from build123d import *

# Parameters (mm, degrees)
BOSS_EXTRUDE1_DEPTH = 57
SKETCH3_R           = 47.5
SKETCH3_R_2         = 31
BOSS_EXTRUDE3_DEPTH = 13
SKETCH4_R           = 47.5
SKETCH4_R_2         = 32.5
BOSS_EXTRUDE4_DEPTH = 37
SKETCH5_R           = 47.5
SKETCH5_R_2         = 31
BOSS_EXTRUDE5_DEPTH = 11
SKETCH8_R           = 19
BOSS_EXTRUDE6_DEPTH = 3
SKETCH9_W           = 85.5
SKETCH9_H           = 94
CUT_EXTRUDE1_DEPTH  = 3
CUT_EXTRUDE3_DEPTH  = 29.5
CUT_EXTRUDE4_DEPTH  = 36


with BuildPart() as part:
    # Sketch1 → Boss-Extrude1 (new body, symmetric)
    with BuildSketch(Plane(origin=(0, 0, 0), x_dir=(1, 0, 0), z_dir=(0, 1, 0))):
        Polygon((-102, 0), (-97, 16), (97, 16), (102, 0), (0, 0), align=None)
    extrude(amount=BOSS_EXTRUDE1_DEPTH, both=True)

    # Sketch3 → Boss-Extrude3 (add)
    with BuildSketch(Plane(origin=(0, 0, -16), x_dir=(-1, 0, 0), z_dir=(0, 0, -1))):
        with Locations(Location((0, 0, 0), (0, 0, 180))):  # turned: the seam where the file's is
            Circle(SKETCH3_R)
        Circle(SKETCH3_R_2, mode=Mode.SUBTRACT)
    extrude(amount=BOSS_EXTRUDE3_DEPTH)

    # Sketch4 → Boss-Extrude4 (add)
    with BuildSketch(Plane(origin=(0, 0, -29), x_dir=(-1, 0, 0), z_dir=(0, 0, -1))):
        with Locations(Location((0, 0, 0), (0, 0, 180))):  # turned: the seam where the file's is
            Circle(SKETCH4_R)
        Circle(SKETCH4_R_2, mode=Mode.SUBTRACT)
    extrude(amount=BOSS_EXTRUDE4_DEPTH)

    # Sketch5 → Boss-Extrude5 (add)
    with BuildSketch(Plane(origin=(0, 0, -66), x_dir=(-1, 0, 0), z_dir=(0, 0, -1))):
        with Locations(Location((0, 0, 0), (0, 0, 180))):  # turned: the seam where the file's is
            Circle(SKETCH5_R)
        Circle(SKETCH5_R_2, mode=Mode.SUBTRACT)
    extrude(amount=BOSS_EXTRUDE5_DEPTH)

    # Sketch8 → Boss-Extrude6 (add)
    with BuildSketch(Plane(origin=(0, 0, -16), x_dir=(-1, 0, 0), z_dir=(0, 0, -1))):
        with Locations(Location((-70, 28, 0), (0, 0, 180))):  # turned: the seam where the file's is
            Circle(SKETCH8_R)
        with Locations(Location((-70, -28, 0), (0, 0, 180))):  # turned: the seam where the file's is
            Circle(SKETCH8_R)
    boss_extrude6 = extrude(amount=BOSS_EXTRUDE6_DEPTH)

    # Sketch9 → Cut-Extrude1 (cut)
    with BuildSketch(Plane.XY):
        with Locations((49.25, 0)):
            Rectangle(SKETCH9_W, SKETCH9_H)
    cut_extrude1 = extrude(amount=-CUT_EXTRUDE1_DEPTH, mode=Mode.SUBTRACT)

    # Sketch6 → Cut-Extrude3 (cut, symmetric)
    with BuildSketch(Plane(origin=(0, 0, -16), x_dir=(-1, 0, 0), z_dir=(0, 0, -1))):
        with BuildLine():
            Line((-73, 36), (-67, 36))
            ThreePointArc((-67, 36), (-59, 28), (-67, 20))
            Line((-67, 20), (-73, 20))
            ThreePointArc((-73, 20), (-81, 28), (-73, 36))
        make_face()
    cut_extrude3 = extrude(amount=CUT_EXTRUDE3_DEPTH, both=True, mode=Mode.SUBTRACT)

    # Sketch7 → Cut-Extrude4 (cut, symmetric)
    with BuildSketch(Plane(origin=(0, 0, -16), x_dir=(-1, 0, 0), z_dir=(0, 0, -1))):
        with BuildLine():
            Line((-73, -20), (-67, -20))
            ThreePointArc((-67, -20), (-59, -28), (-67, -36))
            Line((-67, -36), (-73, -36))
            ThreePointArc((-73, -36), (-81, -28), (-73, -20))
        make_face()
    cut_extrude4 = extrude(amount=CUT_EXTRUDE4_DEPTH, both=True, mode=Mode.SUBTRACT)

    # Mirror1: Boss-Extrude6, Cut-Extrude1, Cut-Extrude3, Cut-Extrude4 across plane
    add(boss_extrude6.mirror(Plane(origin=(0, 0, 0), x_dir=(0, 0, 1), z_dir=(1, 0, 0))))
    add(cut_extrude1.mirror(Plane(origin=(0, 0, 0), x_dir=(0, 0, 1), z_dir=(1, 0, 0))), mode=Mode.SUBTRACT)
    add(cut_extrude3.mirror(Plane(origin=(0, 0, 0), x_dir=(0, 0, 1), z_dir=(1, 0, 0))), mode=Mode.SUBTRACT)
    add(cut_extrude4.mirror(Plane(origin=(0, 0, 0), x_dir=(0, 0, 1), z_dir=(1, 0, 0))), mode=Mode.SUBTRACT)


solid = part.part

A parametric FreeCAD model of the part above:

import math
import FreeCAD as App
import Part
import Sketcher

V = App.Vector
Q = App.Units.Quantity

doc = App.newDocument("Part")
params = doc.addObject("Spreadsheet::Sheet", "Params")
for row, (alias, value) in enumerate([
    ("sketch1_width", "204 mm"),
    ("sketch1_width2", "194 mm"),
    ("pad1_length", "114 mm"),
    ("sketch2_diameter", "95 mm"),
    ("sketch2_diameter2", "62 mm"),
    ("pad2_length", "13 mm"),
    ("sketch3_diameter", "95 mm"),
    ("sketch3_diameter2", "65 mm"),
    ("pad3_length", "37 mm"),
    ("sketch4_diameter", "95 mm"),
    ("sketch4_diameter2", "62 mm"),
    ("pad4_length", "11 mm"),
    ("sketch5_diameter", "38 mm"),
    ("pad5_length", "3 mm"),
    ("sketch6_height", "94 mm"),
    ("sketch6_width", "85.5 mm"),
    ("pocket1_length", "3 mm"),
    ("sketch7_radius", "8 mm"),
    ("sketch7_width", "6 mm"),
    ("pocket2_length", "59 mm"),
    ("sketch8_radius", "8 mm"),
    ("sketch8_width", "6 mm"),
    ("pocket3_length", "72 mm"),
], start=1):
    params.set(f"A{row}", alias)
    params.set(f"B{row}", "=" + value)
    params.setAlias(f"B{row}", alias)

body = doc.addObject("PartDesign::Body", "Body")

# Sketch on XZ plane
sketch1 = body.newObject("Sketcher::SketchObject", "Sketch")
sketch1.AttachmentSupport = (doc.getObject("XZ_Plane"), [""])
sketch1.MapMode = "FlatFace"
sketch1.addGeometry([
    Part.LineSegment(V(-97, -16, 0), V(-102, 0, 0)),
    Part.LineSegment(V(-102, 0, 0), V(102, 0, 0)),
    Part.LineSegment(V(102, 0, 0), V(97, -16, 0)),
    Part.LineSegment(V(97, -16, 0), V(-97, -16, 0)),
], False)
sketch1.addConstraint([
    Sketcher.Constraint("Coincident", 0, 2, 1, 1),
    Sketcher.Constraint("Coincident", 1, 2, 2, 1),
    Sketcher.Constraint("Coincident", 2, 2, 3, 1),
    Sketcher.Constraint("Coincident", 3, 2, 0, 1),
    Sketcher.Constraint("Horizontal", 1),
    Sketcher.Constraint("Horizontal", 3),
    Sketcher.Constraint("Symmetric", 0, 2, 1, 2, -1, 1),
    Sketcher.Constraint("Equal", 0, 2),
    Sketcher.Constraint("DistanceX", 1, 1, 1, 2, Q("204 mm")),
    Sketcher.Constraint("DistanceX", 3, 2, 3, 1, Q("194 mm")),
    Sketcher.Constraint("DistanceY", 2, 2, -1, 1, Q("16 mm")),
])
sketch1.setExpression("Constraints[8]", "Params.sketch1_width")
sketch1.setExpression("Constraints[9]", "Params.sketch1_width2")
pad1 = body.newObject("PartDesign::Pad", "Pad")
pad1.Profile = sketch1
pad1.setExpression("Length", "Params.pad1_length")
pad1.Midplane = True

# Sketch on XY plane
sketch2 = body.newObject("Sketcher::SketchObject", "Sketch001")
sketch2.AttachmentSupport = (doc.getObject("XY_Plane"), [""])
sketch2.MapMode = "FlatFace"
sketch2.AttachmentOffset = App.Placement(V(0, 0, -16), App.Rotation())
sketch2.addGeometry([
    Part.Circle(V(0, 0, 0), V(0, 0, 1), 47.5),
    Part.Circle(V(0, 0, 0), V(0, 0, 1), 31),
], False)
sketch2.addConstraint([
    Sketcher.Constraint("Coincident", 0, 3, -1, 1),
    Sketcher.Constraint("Coincident", 1, 3, -1, 1),
    Sketcher.Constraint("Diameter", 0, Q("95 mm")),
    Sketcher.Constraint("Diameter", 1, Q("62 mm")),
])
sketch2.setExpression("Constraints[2]", "Params.sketch2_diameter")
sketch2.setExpression("Constraints[3]", "Params.sketch2_diameter2")
pad2 = body.newObject("PartDesign::Pad", "Pad001")
pad2.Profile = sketch2
pad2.setExpression("Length", "Params.pad2_length")
pad2.Reversed = True

# Sketch on XY plane
sketch3 = body.newObject("Sketcher::SketchObject", "Sketch002")
sketch3.AttachmentSupport = (doc.getObject("XY_Plane"), [""])
sketch3.MapMode = "FlatFace"
sketch3.AttachmentOffset = App.Placement(V(0, 0, -29), App.Rotation())
sketch3.addGeometry([
    Part.Circle(V(0, 0, 0), V(0, 0, 1), 47.5),
    Part.Circle(V(0, 0, 0), V(0, 0, 1), 32.5),
], False)
sketch3.addConstraint([
    Sketcher.Constraint("Coincident", 0, 3, -1, 1),
    Sketcher.Constraint("Coincident", 1, 3, -1, 1),
    Sketcher.Constraint("Diameter", 0, Q("95 mm")),
    Sketcher.Constraint("Diameter", 1, Q("65 mm")),
])
sketch3.setExpression("Constraints[2]", "Params.sketch3_diameter")
sketch3.setExpression("Constraints[3]", "Params.sketch3_diameter2")
pad3 = body.newObject("PartDesign::Pad", "Pad002")
pad3.Profile = sketch3
pad3.setExpression("Length", "Params.pad3_length")
pad3.Reversed = True

# Sketch on XY plane
sketch4 = body.newObject("Sketcher::SketchObject", "Sketch003")
sketch4.AttachmentSupport = (doc.getObject("XY_Plane"), [""])
sketch4.MapMode = "FlatFace"
sketch4.AttachmentOffset = App.Placement(V(0, 0, -66), App.Rotation())
sketch4.addGeometry([
    Part.Circle(V(0, 0, 0), V(0, 0, 1), 47.5),
    Part.Circle(V(0, 0, 0), V(0, 0, 1), 31),
], False)
sketch4.addConstraint([
    Sketcher.Constraint("Coincident", 0, 3, -1, 1),
    Sketcher.Constraint("Coincident", 1, 3, -1, 1),
    Sketcher.Constraint("Diameter", 0, Q("95 mm")),
    Sketcher.Constraint("Diameter", 1, Q("62 mm")),
])
sketch4.setExpression("Constraints[2]", "Params.sketch4_diameter")
sketch4.setExpression("Constraints[3]", "Params.sketch4_diameter2")
pad4 = body.newObject("PartDesign::Pad", "Pad003")
pad4.Profile = sketch4
pad4.setExpression("Length", "Params.pad4_length")
pad4.Reversed = True

# Sketch on XY plane
sketch5 = body.newObject("Sketcher::SketchObject", "Sketch004")
sketch5.AttachmentSupport = (doc.getObject("XY_Plane"), [""])
sketch5.MapMode = "FlatFace"
sketch5.AttachmentOffset = App.Placement(V(0, 0, -16), App.Rotation())
sketch5.addGeometry([
    Part.Circle(V(70, 28, 0), V(0, 0, 1), 19),
    Part.Circle(V(70, -28, 0), V(0, 0, 1), 19),
], False)
sketch5.addConstraint([
    Sketcher.Constraint("Equal", 0, 1),
    Sketcher.Constraint("Symmetric", 0, 3, 1, 3, -1),
    Sketcher.Constraint("Diameter", 0, Q("38 mm")),
    Sketcher.Constraint("DistanceX", -1, 1, 0, 3, Q("70 mm")),
    Sketcher.Constraint("DistanceY", -1, 1, 0, 3, Q("28 mm")),
])
sketch5.setExpression("Constraints[2]", "Params.sketch5_diameter")
pad5 = body.newObject("PartDesign::Pad", "Pad004")
pad5.Profile = sketch5
pad5.setExpression("Length", "Params.pad5_length")
pad5.Reversed = True

# Sketch on XY plane
sketch6 = body.newObject("Sketcher::SketchObject", "Sketch005")
sketch6.AttachmentSupport = (doc.getObject("XY_Plane"), [""])
sketch6.MapMode = "FlatFace"
sketch6.addGeometry([
    Part.LineSegment(V(6.5, 47, 0), V(6.5, -47, 0)),
    Part.LineSegment(V(6.5, -47, 0), V(92, -47, 0)),
    Part.LineSegment(V(92, -47, 0), V(92, 47, 0)),
    Part.LineSegment(V(92, 47, 0), V(6.5, 47, 0)),
], False)
sketch6.addConstraint([
    Sketcher.Constraint("Coincident", 0, 2, 1, 1),
    Sketcher.Constraint("Coincident", 1, 2, 2, 1),
    Sketcher.Constraint("Coincident", 2, 2, 3, 1),
    Sketcher.Constraint("Coincident", 3, 2, 0, 1),
    Sketcher.Constraint("Vertical", 0),
    Sketcher.Constraint("Horizontal", 1),
    Sketcher.Constraint("Vertical", 2),
    Sketcher.Constraint("Horizontal", 3),
    Sketcher.Constraint("DistanceY", 0, 2, 0, 1, Q("94 mm")),
    Sketcher.Constraint("DistanceX", 1, 1, 1, 2, Q("85.5 mm")),
    Sketcher.Constraint("DistanceY", 0, 2, -1, 1, Q("47 mm")),
    Sketcher.Constraint("DistanceX", -1, 1, 1, 2, Q("92 mm")),
])
sketch6.setExpression("Constraints[8]", "Params.sketch6_height")
sketch6.setExpression("Constraints[9]", "Params.sketch6_width")
pocket1 = body.newObject("PartDesign::Pocket", "Pocket")
pocket1.Profile = sketch6
pocket1.setExpression("Length", "Params.pocket1_length")

# Sketch on XY plane
sketch7 = body.newObject("Sketcher::SketchObject", "Sketch006")
sketch7.AttachmentSupport = (doc.getObject("XY_Plane"), [""])
sketch7.MapMode = "FlatFace"
sketch7.AttachmentOffset = App.Placement(V(0, 0, -16), App.Rotation())
sketch7.addGeometry([
    Part.LineSegment(V(67, 36, 0), V(73, 36, 0)),
    Part.ArcOfCircle(Part.Circle(V(73, 28, 0), V(0, 0, 1), 8), math.radians(-90), math.radians(90)),
    Part.LineSegment(V(73, 20, 0), V(67, 20, 0)),
    Part.ArcOfCircle(Part.Circle(V(67, 28, 0), V(0, 0, 1), 8), math.radians(90), math.radians(270)),
], False)
sketch7.addConstraint([
    Sketcher.Constraint("Tangent", 0, 2, 1, 2),
    Sketcher.Constraint("Tangent", 1, 1, 2, 1),
    Sketcher.Constraint("Tangent", 2, 2, 3, 2),
    Sketcher.Constraint("Tangent", 3, 1, 0, 1),
    Sketcher.Constraint("Horizontal", 0),
    Sketcher.Constraint("Horizontal", 2),
    Sketcher.Constraint("Radius", 1, Q("8 mm")),
    Sketcher.Constraint("DistanceX", 0, 1, 0, 2, Q("6 mm")),
    Sketcher.Constraint("DistanceX", -1, 1, 1, 3, Q("73 mm")),
    Sketcher.Constraint("DistanceY", -1, 1, 1, 3, Q("28 mm")),
])
sketch7.setExpression("Constraints[6]", "Params.sketch7_radius")
sketch7.setExpression("Constraints[7]", "Params.sketch7_width")
pocket2 = body.newObject("PartDesign::Pocket", "Pocket001")
pocket2.Profile = sketch7
pocket2.setExpression("Length", "Params.pocket2_length")
pocket2.Midplane = True

# Sketch on XY plane
sketch8 = body.newObject("Sketcher::SketchObject", "Sketch007")
sketch8.AttachmentSupport = (doc.getObject("XY_Plane"), [""])
sketch8.MapMode = "FlatFace"
sketch8.AttachmentOffset = App.Placement(V(0, 0, -16), App.Rotation())
sketch8.addGeometry([
    Part.LineSegment(V(67, -20, 0), V(73, -20, 0)),
    Part.ArcOfCircle(Part.Circle(V(73, -28, 0), V(0, 0, 1), 8), math.radians(-90), math.radians(90)),
    Part.LineSegment(V(73, -36, 0), V(67, -36, 0)),
    Part.ArcOfCircle(Part.Circle(V(67, -28, 0), V(0, 0, 1), 8), math.radians(90), math.radians(270)),
], False)
sketch8.addConstraint([
    Sketcher.Constraint("Tangent", 0, 2, 1, 2),
    Sketcher.Constraint("Tangent", 1, 1, 2, 1),
    Sketcher.Constraint("Tangent", 2, 2, 3, 2),
    Sketcher.Constraint("Tangent", 3, 1, 0, 1),
    Sketcher.Constraint("Horizontal", 0),
    Sketcher.Constraint("Horizontal", 2),
    Sketcher.Constraint("Radius", 1, Q("8 mm")),
    Sketcher.Constraint("DistanceX", 0, 1, 0, 2, Q("6 mm")),
    Sketcher.Constraint("DistanceX", -1, 1, 1, 3, Q("73 mm")),
    Sketcher.Constraint("DistanceY", 1, 3, -1, 1, Q("28 mm")),
])
sketch8.setExpression("Constraints[6]", "Params.sketch8_radius")
sketch8.setExpression("Constraints[7]", "Params.sketch8_width")
pocket3 = body.newObject("PartDesign::Pocket", "Pocket002")
pocket3.Profile = sketch8
pocket3.setExpression("Length", "Params.pocket3_length")
pocket3.Midplane = True
doc.recompute()

mirrored = body.newObject("PartDesign::Mirrored", "Mirrored")
mirrored.Originals = [pad5, pocket1, pocket2, pocket3]
mirrored.MirrorPlane = (doc.getObject("YZ_Plane"), [""])
body.Tip = mirrored

doc.recompute()
